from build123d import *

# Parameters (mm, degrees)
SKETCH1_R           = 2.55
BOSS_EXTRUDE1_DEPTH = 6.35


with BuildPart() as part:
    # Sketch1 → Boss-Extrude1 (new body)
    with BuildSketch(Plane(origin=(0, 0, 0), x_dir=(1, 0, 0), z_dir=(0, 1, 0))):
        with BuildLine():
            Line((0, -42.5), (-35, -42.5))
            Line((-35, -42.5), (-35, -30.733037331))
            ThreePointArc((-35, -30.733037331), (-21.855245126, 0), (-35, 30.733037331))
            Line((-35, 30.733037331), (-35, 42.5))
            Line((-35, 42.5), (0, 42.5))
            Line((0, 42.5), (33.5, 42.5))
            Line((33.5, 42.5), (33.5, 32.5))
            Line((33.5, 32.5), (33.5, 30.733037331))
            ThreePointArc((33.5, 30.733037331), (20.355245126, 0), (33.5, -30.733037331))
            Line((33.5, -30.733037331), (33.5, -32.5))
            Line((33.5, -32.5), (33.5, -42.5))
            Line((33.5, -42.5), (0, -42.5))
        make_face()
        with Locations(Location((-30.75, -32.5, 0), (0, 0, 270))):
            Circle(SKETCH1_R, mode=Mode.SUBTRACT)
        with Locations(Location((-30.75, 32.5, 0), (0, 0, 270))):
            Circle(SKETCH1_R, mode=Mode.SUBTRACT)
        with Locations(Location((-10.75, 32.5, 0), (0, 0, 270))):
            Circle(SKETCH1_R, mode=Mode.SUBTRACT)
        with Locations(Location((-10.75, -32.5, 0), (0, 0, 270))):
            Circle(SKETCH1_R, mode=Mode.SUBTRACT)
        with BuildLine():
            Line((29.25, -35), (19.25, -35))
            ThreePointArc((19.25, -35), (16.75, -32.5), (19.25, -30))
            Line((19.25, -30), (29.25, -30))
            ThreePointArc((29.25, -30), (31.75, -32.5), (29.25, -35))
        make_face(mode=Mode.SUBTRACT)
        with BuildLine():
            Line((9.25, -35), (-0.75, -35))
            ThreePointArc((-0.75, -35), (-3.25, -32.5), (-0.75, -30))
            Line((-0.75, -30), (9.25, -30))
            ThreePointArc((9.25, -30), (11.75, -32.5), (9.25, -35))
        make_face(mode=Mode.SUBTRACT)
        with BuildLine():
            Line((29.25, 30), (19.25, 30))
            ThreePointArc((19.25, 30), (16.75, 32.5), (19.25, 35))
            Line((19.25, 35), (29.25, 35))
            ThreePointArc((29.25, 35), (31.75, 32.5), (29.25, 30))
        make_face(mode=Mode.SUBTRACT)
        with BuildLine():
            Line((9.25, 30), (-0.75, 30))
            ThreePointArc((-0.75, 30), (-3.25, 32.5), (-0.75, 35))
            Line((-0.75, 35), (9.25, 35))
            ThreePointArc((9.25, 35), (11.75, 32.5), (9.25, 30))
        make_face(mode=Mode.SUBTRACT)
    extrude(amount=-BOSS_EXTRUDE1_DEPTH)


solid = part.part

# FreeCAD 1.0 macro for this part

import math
import FreeCAD as App
import Part
import Sketcher

V = App.Vector

doc = App.newDocument("Part")
body = doc.addObject("PartDesign::Body", "Body")

sketch1 = body.newObject("Sketcher::SketchObject", "Sketch")
sketch1.AttachmentSupport = (doc.getObject("XZ_Plane"), [""])
sketch1.MapMode = "FlatFace"
sketch1.addGeometry([
    Part.LineSegment(V(-35, 30.733037, 0), V(-35, 42.5, 0)),
    Part.LineSegment(V(-35, 42.5, 0), V(33.5, 42.5, 0)),
    Part.LineSegment(V(33.5, 42.5, 0), V(33.5, 30.733037, 0)),
    Part.ArcOfCircle(Part.Circle(V(62.855245, 0, 0), V(0, 0, 1), 42.5), math.radians(133.686469), math.radians(226.313531)),
    Part.LineSegment(V(33.5, -30.733037, 0), V(33.5, -42.5, 0)),
    Part.LineSegment(V(33.5, -42.5, 0), V(-35, -42.5, 0)),
    Part.LineSegment(V(-35, -42.5, 0), V(-35, -30.733037, 0)),
    Part.ArcOfCircle(Part.Circle(V(-64.355245, 0, 0), V(0, 0, 1), 42.5), math.radians(-46.313531), math.radians(46.313531)),
    Part.LineSegment(V(29.25, 35, 0), V(19.25, 35, 0)),
    Part.ArcOfCircle(Part.Circle(V(19.25, 32.5, 0), V(0, 0, 1), 2.5), math.radians(90), math.radians(270)),
    Part.LineSegment(V(19.25, 30, 0), V(29.25, 30, 0)),
    Part.ArcOfCircle(Part.Circle(V(29.25, 32.5, 0), V(0, 0, 1), 2.5), math.radians(-90), math.radians(90)),
    Part.LineSegment(V(9.25, 35, 0), V(-0.75, 35, 0)),
    Part.ArcOfCircle(Part.Circle(V(-0.75, 32.5, 0), V(0, 0, 1), 2.5), math.radians(90), math.radians(270)),
    Part.LineSegment(V(-0.75, 30, 0), V(9.25, 30, 0)),
    Part.ArcOfCircle(Part.Circle(V(9.25, 32.5, 0), V(0, 0, 1), 2.5), math.radians(-90), math.radians(90)),
    Part.Circle(V(-10.75, 32.5, 0), V(0, 0, 1), 2.55),
    Part.Circle(V(-30.75, 32.5, 0), V(0, 0, 1), 2.55),
    Part.LineSegment(V(29.25, -30, 0), V(19.25, -30, 0)),
    Part.ArcOfCircle(Part.Circle(V(19.25, -32.5, 0), V(0, 0, 1), 2.5), math.radians(90), math.radians(270)),
    Part.LineSegment(V(19.25, -35, 0), V(29.25, -35, 0)),
    Part.ArcOfCircle(Part.Circle(V(29.25, -32.5, 0), V(0, 0, 1), 2.5), math.radians(-90), math.radians(90)),
    Part.LineSegment(V(9.25, -30, 0), V(-0.75, -30, 0)),
    Part.ArcOfCircle(Part.Circle(V(-0.75, -32.5, 0), V(0, 0, 1), 2.5), math.radians(90), math.radians(270)),
    Part.LineSegment(V(-0.75, -35, 0), V(9.25, -35, 0)),
    Part.ArcOfCircle(Part.Circle(V(9.25, -32.5, 0), V(0, 0, 1), 2.5), math.radians(-90), math.radians(90)),
    Part.Circle(V(-10.75, -32.5, 0), V(0, 0, 1), 2.55),
    Part.Circle(V(-30.75, -32.5, 0), V(0, 0, 1), 2.55),
], False)
sketch1.addConstraint([
    Sketcher.Constraint("Coincident", 0, 2, 1, 1),
    Sketcher.Constraint("Coincident", 1, 2, 2, 1),
    Sketcher.Constraint("Coincident", 2, 2, 3, 1),
    Sketcher.Constraint("Coincident", 3, 2, 4, 1),
    Sketcher.Constraint("Coincident", 4, 2, 5, 1),
    Sketcher.Constraint("Coincident", 5, 2, 6, 1),
    Sketcher.Constraint("Coincident", 6, 2, 7, 1),
    Sketcher.Constraint("Coincident", 7, 2, 0, 1),
    Sketcher.Constraint("Tangent", 8, 2, 9, 1),
    Sketcher.Constraint("Tangent", 9, 2, 10, 1),
    Sketcher.Constraint("Tangent", 10, 2, 11, 1),
    Sketcher.Constraint("Tangent", 11, 2, 8, 1),
    Sketcher.Constraint("Tangent", 12, 2, 13, 1),
    Sketcher.Constraint("Tangent", 13, 2, 14, 1),
    Sketcher.Constraint("Tangent", 14, 2, 15, 1),
    Sketcher.Constraint("Tangent", 15, 2, 12, 1),
    Sketcher.Constraint("Tangent", 18, 2, 19, 1),
    Sketcher.Constraint("Tangent", 19, 2, 20, 1),
    Sketcher.Constraint("Tangent", 20, 2, 21, 1),
    Sketcher.Constraint("Tangent", 21, 2, 18, 1),
    Sketcher.Constraint("Tangent", 22, 2, 23, 1),
    Sketcher.Constraint("Tangent", 23, 2, 24, 1),
    Sketcher.Constraint("Tangent", 24, 2, 25, 1),
    Sketcher.Constraint("Tangent", 25, 2, 22, 1),
    Sketcher.Constraint("Vertical", 0),
    Sketcher.Constraint("Horizontal", 1),
    Sketcher.Constraint("Vertical", 2),
    Sketcher.Constraint("Vertical", 4),
    Sketcher.Constraint("Horizontal", 5),
    Sketcher.Constraint("Vertical", 6),
    Sketcher.Constraint("Horizontal", 8),
    Sketcher.Constraint("Horizontal", 10),
    Sketcher.Constraint("Horizontal", 12),
    Sketcher.Constraint("Horizontal", 14),
    Sketcher.Constraint("Horizontal", 18),
    Sketcher.Constraint("Horizontal", 20),
    Sketcher.Constraint("Horizontal", 22),
    Sketcher.Constraint("Horizontal", 24),
    Sketcher.Constraint("Equal", 3, 7),
    Sketcher.Constraint("Equal", 11, 13),
    Sketcher.Constraint("Equal", 16, 17),
    Sketcher.Constraint("Equal", 15, 19),
    Sketcher.Constraint("Equal", 21, 23),
    Sketcher.Constraint("Equal", 17, 26),
    Sketcher.Constraint("Equal", 26, 27),
    Sketcher.Constraint("Symmetric", 9, 3, 19, 3, -1),
    Sketcher.Constraint("Symmetric", 13, 3, 23, 3, -1),
    Sketcher.Constraint("Symmetric", 16, 3, 26, 3, -1),
    Sketcher.Constraint("Symmetric", 17, 3, 27, 3, -1),
    Sketcher.Constraint("Symmetric", 2, 2, 3, 2, -1),
    Sketcher.Constraint("Symmetric", 0, 2, 5, 2, -1),
    Sketcher.Constraint("PointOnObject", 7, 3, -1),
    Sketcher.Constraint("Horizontal", 11, 3, 13, 3),
    Sketcher.Constraint("Horizontal", 15, 3, 16, 3),
    Sketcher.Constraint("Horizontal", 16, 3, 17, 3),
    Sketcher.Constraint("Horizontal", 3, 2, 6, 2),
    Sketcher.Constraint("Vertical", 11, 3, 21, 3),
    Sketcher.Constraint("Vertical", 15, 3, 25, 3),
    Sketcher.Constraint("Equal", 10, 12),
    Sketcher.Constraint("Diameter", 16, 5.1),
    Sketcher.Constraint("Radius", 3, 42.5),
    Sketcher.Constraint("Radius", 9, 2.5),
    Sketcher.Constraint("DistanceX", 8, 2, 8, 1, 10.0),
    Sketcher.Constraint("DistanceX", 1, 1, 1, 2, 68.5),
    Sketcher.Constraint("DistanceX", 0, 2, -1, 1, 35.0),
    Sketcher.Constraint("DistanceY", -1, 1, 8, 2, 35.0),
    Sketcher.Constraint("DistanceX", 13, 3, 9, 3, 20.0),
    Sketcher.Constraint("DistanceX", 16, 3, 13, 3, 10.0),
    Sketcher.Constraint("DistanceX", 17, 3, 16, 3, 20.0),
    Sketcher.Constraint("DistanceY", 17, 3, 0, 2, 10.0),
    Sketcher.Constraint("DistanceX", -1, 1, 9, 3, 19.25),
    Sketcher.Constraint("DistanceY", 0, 1, 0, 2, 11.766963),
])
pad1 = body.newObject("PartDesign::Pad", "Pad")
pad1.Profile = sketch1
pad1.Length = 6.35

doc.recompute()
